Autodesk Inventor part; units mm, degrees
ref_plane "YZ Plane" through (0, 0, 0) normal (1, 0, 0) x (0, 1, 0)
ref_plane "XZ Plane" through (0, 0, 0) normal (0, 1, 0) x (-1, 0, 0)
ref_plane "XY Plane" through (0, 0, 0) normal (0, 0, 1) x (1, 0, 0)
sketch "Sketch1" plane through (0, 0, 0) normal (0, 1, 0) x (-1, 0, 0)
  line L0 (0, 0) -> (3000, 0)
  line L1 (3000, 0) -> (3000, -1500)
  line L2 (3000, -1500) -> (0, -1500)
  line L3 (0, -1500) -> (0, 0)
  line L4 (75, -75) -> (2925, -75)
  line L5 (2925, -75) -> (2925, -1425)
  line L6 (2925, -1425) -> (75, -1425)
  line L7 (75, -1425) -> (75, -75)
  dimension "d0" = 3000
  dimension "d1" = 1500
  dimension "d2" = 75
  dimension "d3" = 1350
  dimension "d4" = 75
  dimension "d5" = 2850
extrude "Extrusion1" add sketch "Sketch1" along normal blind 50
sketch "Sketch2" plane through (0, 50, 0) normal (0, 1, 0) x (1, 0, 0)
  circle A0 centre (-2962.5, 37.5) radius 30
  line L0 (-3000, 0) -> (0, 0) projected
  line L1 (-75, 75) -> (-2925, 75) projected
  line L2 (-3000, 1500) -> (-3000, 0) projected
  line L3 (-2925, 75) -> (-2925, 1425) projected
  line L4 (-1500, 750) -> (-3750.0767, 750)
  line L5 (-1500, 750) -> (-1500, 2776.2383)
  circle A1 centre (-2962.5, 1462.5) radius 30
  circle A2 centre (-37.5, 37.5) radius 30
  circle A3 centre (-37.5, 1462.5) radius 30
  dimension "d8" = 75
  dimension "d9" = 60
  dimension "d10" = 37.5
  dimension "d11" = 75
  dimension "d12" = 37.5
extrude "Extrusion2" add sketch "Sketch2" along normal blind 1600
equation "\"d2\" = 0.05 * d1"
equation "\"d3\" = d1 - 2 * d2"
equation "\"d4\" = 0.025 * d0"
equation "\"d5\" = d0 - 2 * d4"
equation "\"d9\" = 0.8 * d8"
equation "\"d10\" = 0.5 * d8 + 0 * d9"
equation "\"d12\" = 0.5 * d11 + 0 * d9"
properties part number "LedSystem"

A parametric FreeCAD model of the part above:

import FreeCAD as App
import Part
import Sketcher

V = App.Vector


def add_polygon(sketch, points):
    """Adds a closed chain of lines whose ends are joined by coincident constraints."""
    first, n = sketch.GeometryCount, len(points)
    for a, b in zip(points, points[1:] + points[:1]):
        sketch.addGeometry(Part.LineSegment(App.Vector(*a, 0), App.Vector(*b, 0)), False)
    for i in range(n):
        sketch.addConstraint(Sketcher.Constraint("Coincident", first + i, 2, first + (i + 1) % n, 1))

doc = App.newDocument("Part")
params = doc.addObject("Spreadsheet::Sheet", "Params")
for row, (alias, value) in enumerate([
    ("sketch1_width", "3000 mm"),
    ("sketch1_width2", "2850 mm"),
    ("sketch1_height", "1500 mm"),
    ("sketch1_height2", "1350 mm"),
    ("pad1_length", "50 mm"),
    ("sketch2_diameter", "60 mm"),
    ("pad2_length", "1600 mm"),
], start=1):
    params.set(f"A{row}", alias)
    params.set(f"B{row}", "=" + value)
    params.setAlias(f"B{row}", alias)

body = doc.addObject("PartDesign::Body", "Body")

# Sketch on XZ plane
sketch1 = body.newObject("Sketcher::SketchObject", "Sketch")
sketch1.AttachmentSupport = (doc.getObject("XZ_Plane"), [""])
sketch1.MapMode = "FlatFace"
add_polygon(sketch1, [(-3000, 0), (0, 0), (0, -1500), (-3000, -1500)])  # lines 0-3
add_polygon(sketch1, [(-75, -1425), (-75, -75), (-2925, -75), (-2925, -1425)])  # lines 4-7
sketch1.addConstraint(Sketcher.Constraint("Horizontal", 0))
sketch1.addConstraint(Sketcher.Constraint("Vertical", 1))
sketch1.addConstraint(Sketcher.Constraint("Horizontal", 2))
sketch1.addConstraint(Sketcher.Constraint("Vertical", 3))
sketch1.addConstraint(Sketcher.Constraint("Vertical", 4))
sketch1.addConstraint(Sketcher.Constraint("Horizontal", 5))
sketch1.addConstraint(Sketcher.Constraint("Vertical", 6))
sketch1.addConstraint(Sketcher.Constraint("Horizontal", 7))
sketch1.addConstraint(Sketcher.Constraint("Coincident", 0, 2, -1, 1))
sketch1.addConstraint(Sketcher.Constraint("DistanceX", 0, 1, 0, 2, 3000.0))
sketch1.addConstraint(Sketcher.Constraint("DistanceX", 5, 2, 5, 1, 2850.0))
sketch1.addConstraint(Sketcher.Constraint("DistanceY", 1, 2, 1, 1, 1500.0))
sketch1.addConstraint(Sketcher.Constraint("DistanceY", 4, 1, 4, 2, 1350.0))
sketch1.addConstraint(Sketcher.Constraint("DistanceX", 4, 2, -1, 1, 75.0))
sketch1.addConstraint(Sketcher.Constraint("DistanceY", 4, 2, -1, 1, 75.0))
sketch1.setExpression("Constraints[17]", "Params.sketch1_width")
sketch1.setExpression("Constraints[18]", "Params.sketch1_width2")
sketch1.setExpression("Constraints[19]", "Params.sketch1_height")
sketch1.setExpression("Constraints[20]", "Params.sketch1_height2")
pad1 = body.newObject("PartDesign::Pad", "Pad")
pad1.Profile = sketch1
pad1.setExpression("Length", "Params.pad1_length")
pad1.Reversed = True

# Sketch on XZ plane
sketch2 = body.newObject("Sketcher::SketchObject", "Sketch001")
sketch2.AttachmentSupport = (doc.getObject("XZ_Plane"), [""])
sketch2.MapMode = "FlatFace"
sketch2.AttachmentOffset = App.Placement(V(0, 0, -50), App.Rotation())
sketch2.addGeometry(Part.Circle(V(-2962, -38, 0), V(0, 0, 1), 30), False)
sketch2.addGeometry(Part.Circle(V(-2962, -1462, 0), V(0, 0, 1), 30), False)
sketch2.addGeometry(Part.Circle(V(-38, -38, 0), V(0, 0, 1), 30), False)
sketch2.addGeometry(Part.Circle(V(-38, -1462, 0), V(0, 0, 1), 30), False)
sketch2.addConstraint(Sketcher.Constraint("Equal", 0, 1))
sketch2.addConstraint(Sketcher.Constraint("Equal", 1, 2))
sketch2.addConstraint(Sketcher.Constraint("Equal", 2, 3))
sketch2.addConstraint(Sketcher.Constraint("Horizontal", 0, 3, 2, 3))
sketch2.addConstraint(Sketcher.Constraint("Horizontal", 1, 3, 3, 3))
sketch2.addConstraint(Sketcher.Constraint("Vertical", 0, 3, 1, 3))
sketch2.addConstraint(Sketcher.Constraint("Vertical", 2, 3, 3, 3))
sketch2.addConstraint(Sketcher.Constraint("Diameter", 0, 60.0))
sketch2.addConstraint(Sketcher.Constraint("DistanceY", 0, 3, -1, 1, 37.5))
sketch2.addConstraint(Sketcher.Constraint("DistanceX", 2, 3, -1, 1, 37.5))
sketch2.addConstraint(Sketcher.Constraint("DistanceY", 1, 3, 0, 3, 1425.0))
sketch2.addConstraint(Sketcher.Constraint("DistanceX", 0, 3, 2, 3, 2925.0))
sketch2.setExpression("Constraints[7]", "Params.sketch2_diameter")
pad2 = body.newObject("PartDesign::Pad", "Pad001")
pad2.Profile = sketch2
pad2.setExpression("Length", "Params.pad2_length")
pad2.Reversed = True

doc.recompute()
